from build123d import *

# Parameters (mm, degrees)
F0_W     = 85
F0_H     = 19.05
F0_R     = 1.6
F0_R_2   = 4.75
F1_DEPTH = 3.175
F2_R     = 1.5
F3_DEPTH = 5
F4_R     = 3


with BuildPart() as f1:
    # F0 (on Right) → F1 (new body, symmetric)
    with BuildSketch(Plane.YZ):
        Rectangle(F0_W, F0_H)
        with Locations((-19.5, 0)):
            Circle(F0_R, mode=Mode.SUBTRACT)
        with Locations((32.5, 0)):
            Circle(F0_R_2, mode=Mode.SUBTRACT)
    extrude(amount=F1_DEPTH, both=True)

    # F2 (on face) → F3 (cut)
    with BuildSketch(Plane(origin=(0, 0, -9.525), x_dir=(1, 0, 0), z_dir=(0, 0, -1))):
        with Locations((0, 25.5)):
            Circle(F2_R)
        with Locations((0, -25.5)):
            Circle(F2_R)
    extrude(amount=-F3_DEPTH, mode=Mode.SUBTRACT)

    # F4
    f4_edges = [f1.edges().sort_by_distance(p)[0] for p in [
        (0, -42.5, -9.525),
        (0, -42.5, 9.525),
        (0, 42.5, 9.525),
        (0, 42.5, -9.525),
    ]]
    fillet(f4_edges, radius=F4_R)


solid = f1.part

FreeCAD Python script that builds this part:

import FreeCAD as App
import Part
import Sketcher

V = App.Vector


def edges_at(feature, points):
    """Names of the edges that pass closest to the given points."""
    edges = feature.Shape.Edges
    near = lambda p: min(range(len(edges)), key=lambda i: edges[i].distToShape(Part.Vertex(*p))[0])
    return sorted({f"Edge{near(p) + 1}" for p in points})

doc = App.newDocument("Part")
body = doc.addObject("PartDesign::Body", "Body")

sketch1 = body.newObject("Sketcher::SketchObject", "Sketch")
sketch1.AttachmentSupport = (doc.getObject("YZ_Plane"), [""])
sketch1.MapMode = "FlatFace"
sketch1.addGeometry(Part.LineSegment(V(-42.5, 9.5, 0), V(-42.5, -9.5, 0)), False)
sketch1.addGeometry(Part.LineSegment(V(-42.5, -9.5, 0), V(42.5, -9.5, 0)), False)
sketch1.addGeometry(Part.LineSegment(V(42.5, -9.5, 0), V(42.5, 9.5, 0)), False)
sketch1.addGeometry(Part.LineSegment(V(42.5, 9.5, 0), V(-42.5, 9.5, 0)), False)
sketch1.addGeometry(Part.Circle(V(-19.5, 0, 0), V(0, 0, 1), 1.6), False)
sketch1.addGeometry(Part.Circle(V(32.5, 0, 0), V(0, 0, 1), 4.8), False)
sketch1.addConstraint(Sketcher.Constraint("Coincident", 0, 2, 1, 1))
sketch1.addConstraint(Sketcher.Constraint("Coincident", 1, 2, 2, 1))
sketch1.addConstraint(Sketcher.Constraint("Coincident", 2, 2, 3, 1))
sketch1.addConstraint(Sketcher.Constraint("Coincident", 3, 2, 0, 1))
sketch1.addConstraint(Sketcher.Constraint("Vertical", 0))
sketch1.addConstraint(Sketcher.Constraint("Horizontal", 1))
sketch1.addConstraint(Sketcher.Constraint("Vertical", 2))
sketch1.addConstraint(Sketcher.Constraint("Horizontal", 3))
sketch1.addConstraint(Sketcher.Constraint("Symmetric", 0, 2, 2, 2, -1, 1))
sketch1.addConstraint(Sketcher.Constraint("PointOnObject", 4, 3, -1))
sketch1.addConstraint(Sketcher.Constraint("PointOnObject", 5, 3, -1))
sketch1.addConstraint(Sketcher.Constraint("Diameter", 4, 3.2))
sketch1.addConstraint(Sketcher.Constraint("Diameter", 5, 9.5))
sketch1.addConstraint(Sketcher.Constraint("DistanceX", 1, 1, 1, 2, 85.0))
sketch1.addConstraint(Sketcher.Constraint("DistanceX", 4, 3, 5, 3, 52.0))
sketch1.addConstraint(Sketcher.Constraint("DistanceX", 0, 2, 4, 3, 23.0))
sketch1.addConstraint(Sketcher.Constraint("DistanceY", 0, 2, 0, 1, 19.05))
pad1 = body.newObject("PartDesign::Pad", "Pad")
pad1.Profile = sketch1
pad1.Length = 6.35
pad1.Midplane = True

sketch2 = body.newObject("Sketcher::SketchObject", "Sketch001")
sketch2.AttachmentSupport = (doc.getObject("XY_Plane"), [""])
sketch2.MapMode = "FlatFace"
sketch2.AttachmentOffset = App.Placement(V(0, 0, -9.525), App.Rotation())
sketch2.addGeometry(Part.Circle(V(0, -25.5, 0), V(0, 0, 1), 1.5), False)
sketch2.addGeometry(Part.Circle(V(0, 25.5, 0), V(0, 0, 1), 1.5), False)
sketch2.addConstraint(Sketcher.Constraint("Equal", 0, 1))
sketch2.addConstraint(Sketcher.Constraint("Symmetric", 0, 3, 1, 3, -1, 1))
sketch2.addConstraint(Sketcher.Constraint("PointOnObject", 0, 3, -2))
sketch2.addConstraint(Sketcher.Constraint("Diameter", 0, 3.0))
sketch2.addConstraint(Sketcher.Constraint("DistanceY", 0, 3, 1, 3, 51.0))
pocket1 = body.newObject("PartDesign::Pocket", "Pocket")
pocket1.Profile = sketch2
pocket1.Length = 5
pocket1.Reversed = True
doc.recompute()

fillet = body.newObject("PartDesign::Fillet", "Fillet")
fillet.Base = (pocket1, edges_at(pocket1, [
    (0, -42.5, -9.525),
    (0, -42.5, 9.525),
    (0, 42.5, 9.525),
    (0, 42.5, -9.525),
]))
fillet.Radius = 3

doc.recompute()
